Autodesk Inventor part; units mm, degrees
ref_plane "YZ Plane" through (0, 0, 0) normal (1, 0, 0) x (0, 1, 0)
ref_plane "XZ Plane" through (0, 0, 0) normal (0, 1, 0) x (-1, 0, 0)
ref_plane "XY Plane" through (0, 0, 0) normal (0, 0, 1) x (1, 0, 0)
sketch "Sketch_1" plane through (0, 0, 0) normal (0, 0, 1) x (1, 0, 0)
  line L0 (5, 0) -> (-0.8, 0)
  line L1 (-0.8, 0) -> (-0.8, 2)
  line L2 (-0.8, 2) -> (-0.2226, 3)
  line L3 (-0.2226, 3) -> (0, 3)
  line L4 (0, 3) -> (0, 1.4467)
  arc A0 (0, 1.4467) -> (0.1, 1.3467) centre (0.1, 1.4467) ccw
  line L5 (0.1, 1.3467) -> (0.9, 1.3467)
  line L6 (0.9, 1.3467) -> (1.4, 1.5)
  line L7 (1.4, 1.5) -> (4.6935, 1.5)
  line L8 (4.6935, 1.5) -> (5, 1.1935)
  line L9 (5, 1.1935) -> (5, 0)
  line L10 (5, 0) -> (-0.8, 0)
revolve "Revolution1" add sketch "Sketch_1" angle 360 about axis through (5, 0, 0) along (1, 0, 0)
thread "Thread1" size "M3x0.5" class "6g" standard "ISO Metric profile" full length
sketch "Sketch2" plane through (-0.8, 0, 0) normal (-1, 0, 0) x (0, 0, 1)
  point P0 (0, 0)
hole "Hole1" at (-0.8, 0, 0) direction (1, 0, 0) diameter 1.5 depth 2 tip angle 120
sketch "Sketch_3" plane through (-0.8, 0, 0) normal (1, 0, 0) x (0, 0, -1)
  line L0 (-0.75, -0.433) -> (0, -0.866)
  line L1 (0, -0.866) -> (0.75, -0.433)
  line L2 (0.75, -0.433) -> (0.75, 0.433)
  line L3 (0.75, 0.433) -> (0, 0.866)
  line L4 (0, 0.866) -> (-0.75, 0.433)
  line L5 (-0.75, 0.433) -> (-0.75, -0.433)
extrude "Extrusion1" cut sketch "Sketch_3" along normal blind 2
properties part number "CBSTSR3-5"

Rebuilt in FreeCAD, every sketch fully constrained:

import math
import FreeCAD as App
import Part
import Sketcher
Q = App.Units.Quantity

doc = App.newDocument("Part")
params = doc.addObject("Spreadsheet::Sheet", "Params")
for row, (alias, value) in enumerate([
    ("sketch1_radius", "0.1 mm"),
    ("sketch1_height", "2 mm"),
    ("sketch1_width", "5.8 mm"),
    ("sketch1_width2", "0.8 mm"),
    ("revolution_angle", "360 deg"),
    ("sketch2_diameter", "1.5 mm"),
    ("hole_diameter", "1.5 mm"),
    ("hole_depth", "2 mm"),
    ("pocket1_length", "2 mm"),
], start=1):
    params.set(f"A{row}", alias)
    params.set(f"B{row}", "=" + value)
    params.setAlias(f"B{row}", alias)

body = doc.addObject("PartDesign::Body", "Body")

sketch1 = doc.addObject("Sketcher::SketchObject", "Sketch")
body.addObject(sketch1)
sketch1.AttachmentSupport = (doc.XY_Plane, [""])
sketch1.MapMode = "FlatFace"
sketch1.addGeometry([
    Part.LineSegment(App.Vector(-0.8, 0, 0), App.Vector(5, 0, 0)),
    Part.LineSegment(App.Vector(5, 0, 0), App.Vector(5, 1.1935, 0)),
    Part.LineSegment(App.Vector(5, 1.1935, 0), App.Vector(4.6935, 1.5, 0)),
    Part.LineSegment(App.Vector(4.6935, 1.5, 0), App.Vector(1.4, 1.5, 0)),
    Part.LineSegment(App.Vector(1.4, 1.5, 0), App.Vector(0.9, 1.3467, 0)),
    Part.LineSegment(App.Vector(0.9, 1.3467, 0), App.Vector(0.1, 1.3467, 0)),
    Part.ArcOfCircle(Part.Circle(App.Vector(0.1, 1.4467, 0), App.Vector(0, 0, 1), 0.1), math.radians(180), math.radians(270)),
    Part.LineSegment(App.Vector(0, 1.4467, 0), App.Vector(0, 3, 0)),
    Part.LineSegment(App.Vector(0, 3, 0), App.Vector(-0.2226, 3, 0)),
    Part.LineSegment(App.Vector(-0.2226, 3, 0), App.Vector(-0.8, 2, 0)),
    Part.LineSegment(App.Vector(-0.8, 2, 0), App.Vector(-0.8, 0, 0)),
], False)
sketch1.addConstraint([
    Sketcher.Constraint("Coincident", 0, 2, 1, 1),
    Sketcher.Constraint("Coincident", 1, 2, 2, 1),
    Sketcher.Constraint("Coincident", 2, 2, 3, 1),
    Sketcher.Constraint("Coincident", 3, 2, 4, 1),
    Sketcher.Constraint("Coincident", 4, 2, 5, 1),
    Sketcher.Constraint("Tangent", 5, 2, 6, 2),
    Sketcher.Constraint("Tangent", 6, 1, 7, 1),
    Sketcher.Constraint("Coincident", 7, 2, 8, 1),
    Sketcher.Constraint("Coincident", 8, 2, 9, 1),
    Sketcher.Constraint("Coincident", 9, 2, 10, 1),
    Sketcher.Constraint("Coincident", 10, 2, 0, 1),
    Sketcher.Constraint("Horizontal", 0),
    Sketcher.Constraint("Vertical", 1),
    Sketcher.Constraint("Horizontal", 3),
    Sketcher.Constraint("Horizontal", 5),
    Sketcher.Constraint("Vertical", 7),
    Sketcher.Constraint("Horizontal", 8),
    Sketcher.Constraint("Vertical", 10),
    Sketcher.Constraint("PointOnObject", 0, 2, -1),
    Sketcher.Constraint("PointOnObject", 6, 1, -2),
    Sketcher.Constraint("Radius", 6, Q("0.1 mm")),
    Sketcher.Constraint("DistanceY", 10, 2, 10, 1, Q("2 mm")),
    Sketcher.Constraint("Angle", 2, Q("135 deg")),
    Sketcher.Constraint("DistanceX", 0, 1, 0, 2, Q("5.8 mm")),
    Sketcher.Constraint("DistanceX", 5, 2, 5, 1, Q("0.8 mm")),
    Sketcher.Constraint("DistanceX", -1, 1, 0, 2, Q("5 mm")),
    Sketcher.Constraint("DistanceY", -1, 1, 7, 2, Q("3 mm")),
    Sketcher.Constraint("DistanceY", -1, 1, 2, 2, Q("1.5 mm")),
    Sketcher.Constraint("DistanceX", -1, 1, 3, 2, Q("1.4 mm")),
    Sketcher.Constraint("Distance", 4, Q("0.523 mm")),
    Sketcher.Constraint("DistanceX", 3, 2, 3, 1, Q("3.2935 mm")),
    Sketcher.Constraint("DistanceX", 8, 2, 8, 1, Q("0.2226 mm")),
])
sketch1.setExpression("Constraints[20]", "Params.sketch1_radius")
sketch1.setExpression("Constraints[21]", "Params.sketch1_height")
sketch1.setExpression("Constraints[23]", "Params.sketch1_width")
sketch1.setExpression("Constraints[24]", "Params.sketch1_width2")
revolution = doc.addObject("PartDesign::Revolution", "Revolution")
body.addObject(revolution)
revolution.Profile = sketch1
revolution.ReferenceAxis = (sketch1, ["H_Axis"])
revolution.setExpression("Angle", "Params.revolution_angle")

sketch2 = doc.addObject("Sketcher::SketchObject", "Sketch001")
body.addObject(sketch2)
sketch2.AttachmentSupport = (doc.YZ_Plane, [""])
sketch2.MapMode = "FlatFace"
sketch2.AttachmentOffset = App.Placement(App.Vector(0, 0, -0.8), App.Rotation())
sketch2.addGeometry(Part.Circle(App.Vector(0, 0, 0), App.Vector(0, 0, 1), 0.75), False)
sketch2.addConstraint([
    Sketcher.Constraint("Coincident", 0, 3, -1, 1),
    Sketcher.Constraint("Diameter", 0, Q("1.5 mm")),
])
sketch2.setExpression("Constraints[1]", "Params.sketch2_diameter")
doc.recompute()
hole = doc.addObject("PartDesign::Hole", "Hole")
body.addObject(hole)
hole.Profile = sketch2
hole.ThreadType = "None"
hole.setExpression("Diameter", "Params.hole_diameter")
hole.DepthType = "Dimension"
hole.setExpression("Depth", "Params.hole_depth")
hole.DrillPoint = "Angled"
hole.DrillPointAngle = 120
hole.Reversed = True

sketch3 = doc.addObject("Sketcher::SketchObject", "Sketch002")
body.addObject(sketch3)
sketch3.AttachmentSupport = (doc.YZ_Plane, [""])
sketch3.MapMode = "FlatFace"
sketch3.AttachmentOffset = App.Placement(App.Vector(0, 0, -0.8), App.Rotation())
sketch3.addGeometry([
    Part.LineSegment(App.Vector(0.433, 0.75, 0), App.Vector(-0.433, 0.75, 0)),
    Part.LineSegment(App.Vector(-0.433, 0.75, 0), App.Vector(-0.866, 0, 0)),
    Part.LineSegment(App.Vector(-0.866, 0, 0), App.Vector(-0.433, -0.75, 0)),
    Part.LineSegment(App.Vector(-0.433, -0.75, 0), App.Vector(0.433, -0.75, 0)),
    Part.LineSegment(App.Vector(0.433, -0.75, 0), App.Vector(0.866, 0, 0)),
    Part.LineSegment(App.Vector(0.866, 0, 0), App.Vector(0.433, 0.75, 0)),
], False)
sketch3.addConstraint([
    Sketcher.Constraint("Coincident", 0, 2, 1, 1),
    Sketcher.Constraint("Coincident", 1, 2, 2, 1),
    Sketcher.Constraint("Coincident", 2, 2, 3, 1),
    Sketcher.Constraint("Coincident", 3, 2, 4, 1),
    Sketcher.Constraint("Coincident", 4, 2, 5, 1),
    Sketcher.Constraint("Coincident", 5, 2, 0, 1),
    Sketcher.Constraint("Horizontal", 0),
    Sketcher.Constraint("Horizontal", 3),
    Sketcher.Constraint("Symmetric", 0, 2, 3, 2, -1, 1),
    Sketcher.Constraint("Symmetric", 1, 2, 4, 2, -1, 1),
    Sketcher.Constraint("PointOnObject", 1, 2, -1),
    Sketcher.Constraint("Parallel", 2, 5),
    Sketcher.Constraint("Vertical", 0, 2, 2, 2),
    Sketcher.Constraint("Angle", 1, Q("-119.9993 deg")),
    Sketcher.Constraint("DistanceY", 2, 2, 0, 2, Q("1.5 mm")),
    Sketcher.Constraint("DistanceX", 0, 2, 0, 1, Q("0.866 mm")),
])
pocket1 = doc.addObject("PartDesign::Pocket", "Pocket")
body.addObject(pocket1)
pocket1.Profile = sketch3
pocket1.setExpression("Length", "Params.pocket1_length")
pocket1.Reversed = True

doc.recompute()
